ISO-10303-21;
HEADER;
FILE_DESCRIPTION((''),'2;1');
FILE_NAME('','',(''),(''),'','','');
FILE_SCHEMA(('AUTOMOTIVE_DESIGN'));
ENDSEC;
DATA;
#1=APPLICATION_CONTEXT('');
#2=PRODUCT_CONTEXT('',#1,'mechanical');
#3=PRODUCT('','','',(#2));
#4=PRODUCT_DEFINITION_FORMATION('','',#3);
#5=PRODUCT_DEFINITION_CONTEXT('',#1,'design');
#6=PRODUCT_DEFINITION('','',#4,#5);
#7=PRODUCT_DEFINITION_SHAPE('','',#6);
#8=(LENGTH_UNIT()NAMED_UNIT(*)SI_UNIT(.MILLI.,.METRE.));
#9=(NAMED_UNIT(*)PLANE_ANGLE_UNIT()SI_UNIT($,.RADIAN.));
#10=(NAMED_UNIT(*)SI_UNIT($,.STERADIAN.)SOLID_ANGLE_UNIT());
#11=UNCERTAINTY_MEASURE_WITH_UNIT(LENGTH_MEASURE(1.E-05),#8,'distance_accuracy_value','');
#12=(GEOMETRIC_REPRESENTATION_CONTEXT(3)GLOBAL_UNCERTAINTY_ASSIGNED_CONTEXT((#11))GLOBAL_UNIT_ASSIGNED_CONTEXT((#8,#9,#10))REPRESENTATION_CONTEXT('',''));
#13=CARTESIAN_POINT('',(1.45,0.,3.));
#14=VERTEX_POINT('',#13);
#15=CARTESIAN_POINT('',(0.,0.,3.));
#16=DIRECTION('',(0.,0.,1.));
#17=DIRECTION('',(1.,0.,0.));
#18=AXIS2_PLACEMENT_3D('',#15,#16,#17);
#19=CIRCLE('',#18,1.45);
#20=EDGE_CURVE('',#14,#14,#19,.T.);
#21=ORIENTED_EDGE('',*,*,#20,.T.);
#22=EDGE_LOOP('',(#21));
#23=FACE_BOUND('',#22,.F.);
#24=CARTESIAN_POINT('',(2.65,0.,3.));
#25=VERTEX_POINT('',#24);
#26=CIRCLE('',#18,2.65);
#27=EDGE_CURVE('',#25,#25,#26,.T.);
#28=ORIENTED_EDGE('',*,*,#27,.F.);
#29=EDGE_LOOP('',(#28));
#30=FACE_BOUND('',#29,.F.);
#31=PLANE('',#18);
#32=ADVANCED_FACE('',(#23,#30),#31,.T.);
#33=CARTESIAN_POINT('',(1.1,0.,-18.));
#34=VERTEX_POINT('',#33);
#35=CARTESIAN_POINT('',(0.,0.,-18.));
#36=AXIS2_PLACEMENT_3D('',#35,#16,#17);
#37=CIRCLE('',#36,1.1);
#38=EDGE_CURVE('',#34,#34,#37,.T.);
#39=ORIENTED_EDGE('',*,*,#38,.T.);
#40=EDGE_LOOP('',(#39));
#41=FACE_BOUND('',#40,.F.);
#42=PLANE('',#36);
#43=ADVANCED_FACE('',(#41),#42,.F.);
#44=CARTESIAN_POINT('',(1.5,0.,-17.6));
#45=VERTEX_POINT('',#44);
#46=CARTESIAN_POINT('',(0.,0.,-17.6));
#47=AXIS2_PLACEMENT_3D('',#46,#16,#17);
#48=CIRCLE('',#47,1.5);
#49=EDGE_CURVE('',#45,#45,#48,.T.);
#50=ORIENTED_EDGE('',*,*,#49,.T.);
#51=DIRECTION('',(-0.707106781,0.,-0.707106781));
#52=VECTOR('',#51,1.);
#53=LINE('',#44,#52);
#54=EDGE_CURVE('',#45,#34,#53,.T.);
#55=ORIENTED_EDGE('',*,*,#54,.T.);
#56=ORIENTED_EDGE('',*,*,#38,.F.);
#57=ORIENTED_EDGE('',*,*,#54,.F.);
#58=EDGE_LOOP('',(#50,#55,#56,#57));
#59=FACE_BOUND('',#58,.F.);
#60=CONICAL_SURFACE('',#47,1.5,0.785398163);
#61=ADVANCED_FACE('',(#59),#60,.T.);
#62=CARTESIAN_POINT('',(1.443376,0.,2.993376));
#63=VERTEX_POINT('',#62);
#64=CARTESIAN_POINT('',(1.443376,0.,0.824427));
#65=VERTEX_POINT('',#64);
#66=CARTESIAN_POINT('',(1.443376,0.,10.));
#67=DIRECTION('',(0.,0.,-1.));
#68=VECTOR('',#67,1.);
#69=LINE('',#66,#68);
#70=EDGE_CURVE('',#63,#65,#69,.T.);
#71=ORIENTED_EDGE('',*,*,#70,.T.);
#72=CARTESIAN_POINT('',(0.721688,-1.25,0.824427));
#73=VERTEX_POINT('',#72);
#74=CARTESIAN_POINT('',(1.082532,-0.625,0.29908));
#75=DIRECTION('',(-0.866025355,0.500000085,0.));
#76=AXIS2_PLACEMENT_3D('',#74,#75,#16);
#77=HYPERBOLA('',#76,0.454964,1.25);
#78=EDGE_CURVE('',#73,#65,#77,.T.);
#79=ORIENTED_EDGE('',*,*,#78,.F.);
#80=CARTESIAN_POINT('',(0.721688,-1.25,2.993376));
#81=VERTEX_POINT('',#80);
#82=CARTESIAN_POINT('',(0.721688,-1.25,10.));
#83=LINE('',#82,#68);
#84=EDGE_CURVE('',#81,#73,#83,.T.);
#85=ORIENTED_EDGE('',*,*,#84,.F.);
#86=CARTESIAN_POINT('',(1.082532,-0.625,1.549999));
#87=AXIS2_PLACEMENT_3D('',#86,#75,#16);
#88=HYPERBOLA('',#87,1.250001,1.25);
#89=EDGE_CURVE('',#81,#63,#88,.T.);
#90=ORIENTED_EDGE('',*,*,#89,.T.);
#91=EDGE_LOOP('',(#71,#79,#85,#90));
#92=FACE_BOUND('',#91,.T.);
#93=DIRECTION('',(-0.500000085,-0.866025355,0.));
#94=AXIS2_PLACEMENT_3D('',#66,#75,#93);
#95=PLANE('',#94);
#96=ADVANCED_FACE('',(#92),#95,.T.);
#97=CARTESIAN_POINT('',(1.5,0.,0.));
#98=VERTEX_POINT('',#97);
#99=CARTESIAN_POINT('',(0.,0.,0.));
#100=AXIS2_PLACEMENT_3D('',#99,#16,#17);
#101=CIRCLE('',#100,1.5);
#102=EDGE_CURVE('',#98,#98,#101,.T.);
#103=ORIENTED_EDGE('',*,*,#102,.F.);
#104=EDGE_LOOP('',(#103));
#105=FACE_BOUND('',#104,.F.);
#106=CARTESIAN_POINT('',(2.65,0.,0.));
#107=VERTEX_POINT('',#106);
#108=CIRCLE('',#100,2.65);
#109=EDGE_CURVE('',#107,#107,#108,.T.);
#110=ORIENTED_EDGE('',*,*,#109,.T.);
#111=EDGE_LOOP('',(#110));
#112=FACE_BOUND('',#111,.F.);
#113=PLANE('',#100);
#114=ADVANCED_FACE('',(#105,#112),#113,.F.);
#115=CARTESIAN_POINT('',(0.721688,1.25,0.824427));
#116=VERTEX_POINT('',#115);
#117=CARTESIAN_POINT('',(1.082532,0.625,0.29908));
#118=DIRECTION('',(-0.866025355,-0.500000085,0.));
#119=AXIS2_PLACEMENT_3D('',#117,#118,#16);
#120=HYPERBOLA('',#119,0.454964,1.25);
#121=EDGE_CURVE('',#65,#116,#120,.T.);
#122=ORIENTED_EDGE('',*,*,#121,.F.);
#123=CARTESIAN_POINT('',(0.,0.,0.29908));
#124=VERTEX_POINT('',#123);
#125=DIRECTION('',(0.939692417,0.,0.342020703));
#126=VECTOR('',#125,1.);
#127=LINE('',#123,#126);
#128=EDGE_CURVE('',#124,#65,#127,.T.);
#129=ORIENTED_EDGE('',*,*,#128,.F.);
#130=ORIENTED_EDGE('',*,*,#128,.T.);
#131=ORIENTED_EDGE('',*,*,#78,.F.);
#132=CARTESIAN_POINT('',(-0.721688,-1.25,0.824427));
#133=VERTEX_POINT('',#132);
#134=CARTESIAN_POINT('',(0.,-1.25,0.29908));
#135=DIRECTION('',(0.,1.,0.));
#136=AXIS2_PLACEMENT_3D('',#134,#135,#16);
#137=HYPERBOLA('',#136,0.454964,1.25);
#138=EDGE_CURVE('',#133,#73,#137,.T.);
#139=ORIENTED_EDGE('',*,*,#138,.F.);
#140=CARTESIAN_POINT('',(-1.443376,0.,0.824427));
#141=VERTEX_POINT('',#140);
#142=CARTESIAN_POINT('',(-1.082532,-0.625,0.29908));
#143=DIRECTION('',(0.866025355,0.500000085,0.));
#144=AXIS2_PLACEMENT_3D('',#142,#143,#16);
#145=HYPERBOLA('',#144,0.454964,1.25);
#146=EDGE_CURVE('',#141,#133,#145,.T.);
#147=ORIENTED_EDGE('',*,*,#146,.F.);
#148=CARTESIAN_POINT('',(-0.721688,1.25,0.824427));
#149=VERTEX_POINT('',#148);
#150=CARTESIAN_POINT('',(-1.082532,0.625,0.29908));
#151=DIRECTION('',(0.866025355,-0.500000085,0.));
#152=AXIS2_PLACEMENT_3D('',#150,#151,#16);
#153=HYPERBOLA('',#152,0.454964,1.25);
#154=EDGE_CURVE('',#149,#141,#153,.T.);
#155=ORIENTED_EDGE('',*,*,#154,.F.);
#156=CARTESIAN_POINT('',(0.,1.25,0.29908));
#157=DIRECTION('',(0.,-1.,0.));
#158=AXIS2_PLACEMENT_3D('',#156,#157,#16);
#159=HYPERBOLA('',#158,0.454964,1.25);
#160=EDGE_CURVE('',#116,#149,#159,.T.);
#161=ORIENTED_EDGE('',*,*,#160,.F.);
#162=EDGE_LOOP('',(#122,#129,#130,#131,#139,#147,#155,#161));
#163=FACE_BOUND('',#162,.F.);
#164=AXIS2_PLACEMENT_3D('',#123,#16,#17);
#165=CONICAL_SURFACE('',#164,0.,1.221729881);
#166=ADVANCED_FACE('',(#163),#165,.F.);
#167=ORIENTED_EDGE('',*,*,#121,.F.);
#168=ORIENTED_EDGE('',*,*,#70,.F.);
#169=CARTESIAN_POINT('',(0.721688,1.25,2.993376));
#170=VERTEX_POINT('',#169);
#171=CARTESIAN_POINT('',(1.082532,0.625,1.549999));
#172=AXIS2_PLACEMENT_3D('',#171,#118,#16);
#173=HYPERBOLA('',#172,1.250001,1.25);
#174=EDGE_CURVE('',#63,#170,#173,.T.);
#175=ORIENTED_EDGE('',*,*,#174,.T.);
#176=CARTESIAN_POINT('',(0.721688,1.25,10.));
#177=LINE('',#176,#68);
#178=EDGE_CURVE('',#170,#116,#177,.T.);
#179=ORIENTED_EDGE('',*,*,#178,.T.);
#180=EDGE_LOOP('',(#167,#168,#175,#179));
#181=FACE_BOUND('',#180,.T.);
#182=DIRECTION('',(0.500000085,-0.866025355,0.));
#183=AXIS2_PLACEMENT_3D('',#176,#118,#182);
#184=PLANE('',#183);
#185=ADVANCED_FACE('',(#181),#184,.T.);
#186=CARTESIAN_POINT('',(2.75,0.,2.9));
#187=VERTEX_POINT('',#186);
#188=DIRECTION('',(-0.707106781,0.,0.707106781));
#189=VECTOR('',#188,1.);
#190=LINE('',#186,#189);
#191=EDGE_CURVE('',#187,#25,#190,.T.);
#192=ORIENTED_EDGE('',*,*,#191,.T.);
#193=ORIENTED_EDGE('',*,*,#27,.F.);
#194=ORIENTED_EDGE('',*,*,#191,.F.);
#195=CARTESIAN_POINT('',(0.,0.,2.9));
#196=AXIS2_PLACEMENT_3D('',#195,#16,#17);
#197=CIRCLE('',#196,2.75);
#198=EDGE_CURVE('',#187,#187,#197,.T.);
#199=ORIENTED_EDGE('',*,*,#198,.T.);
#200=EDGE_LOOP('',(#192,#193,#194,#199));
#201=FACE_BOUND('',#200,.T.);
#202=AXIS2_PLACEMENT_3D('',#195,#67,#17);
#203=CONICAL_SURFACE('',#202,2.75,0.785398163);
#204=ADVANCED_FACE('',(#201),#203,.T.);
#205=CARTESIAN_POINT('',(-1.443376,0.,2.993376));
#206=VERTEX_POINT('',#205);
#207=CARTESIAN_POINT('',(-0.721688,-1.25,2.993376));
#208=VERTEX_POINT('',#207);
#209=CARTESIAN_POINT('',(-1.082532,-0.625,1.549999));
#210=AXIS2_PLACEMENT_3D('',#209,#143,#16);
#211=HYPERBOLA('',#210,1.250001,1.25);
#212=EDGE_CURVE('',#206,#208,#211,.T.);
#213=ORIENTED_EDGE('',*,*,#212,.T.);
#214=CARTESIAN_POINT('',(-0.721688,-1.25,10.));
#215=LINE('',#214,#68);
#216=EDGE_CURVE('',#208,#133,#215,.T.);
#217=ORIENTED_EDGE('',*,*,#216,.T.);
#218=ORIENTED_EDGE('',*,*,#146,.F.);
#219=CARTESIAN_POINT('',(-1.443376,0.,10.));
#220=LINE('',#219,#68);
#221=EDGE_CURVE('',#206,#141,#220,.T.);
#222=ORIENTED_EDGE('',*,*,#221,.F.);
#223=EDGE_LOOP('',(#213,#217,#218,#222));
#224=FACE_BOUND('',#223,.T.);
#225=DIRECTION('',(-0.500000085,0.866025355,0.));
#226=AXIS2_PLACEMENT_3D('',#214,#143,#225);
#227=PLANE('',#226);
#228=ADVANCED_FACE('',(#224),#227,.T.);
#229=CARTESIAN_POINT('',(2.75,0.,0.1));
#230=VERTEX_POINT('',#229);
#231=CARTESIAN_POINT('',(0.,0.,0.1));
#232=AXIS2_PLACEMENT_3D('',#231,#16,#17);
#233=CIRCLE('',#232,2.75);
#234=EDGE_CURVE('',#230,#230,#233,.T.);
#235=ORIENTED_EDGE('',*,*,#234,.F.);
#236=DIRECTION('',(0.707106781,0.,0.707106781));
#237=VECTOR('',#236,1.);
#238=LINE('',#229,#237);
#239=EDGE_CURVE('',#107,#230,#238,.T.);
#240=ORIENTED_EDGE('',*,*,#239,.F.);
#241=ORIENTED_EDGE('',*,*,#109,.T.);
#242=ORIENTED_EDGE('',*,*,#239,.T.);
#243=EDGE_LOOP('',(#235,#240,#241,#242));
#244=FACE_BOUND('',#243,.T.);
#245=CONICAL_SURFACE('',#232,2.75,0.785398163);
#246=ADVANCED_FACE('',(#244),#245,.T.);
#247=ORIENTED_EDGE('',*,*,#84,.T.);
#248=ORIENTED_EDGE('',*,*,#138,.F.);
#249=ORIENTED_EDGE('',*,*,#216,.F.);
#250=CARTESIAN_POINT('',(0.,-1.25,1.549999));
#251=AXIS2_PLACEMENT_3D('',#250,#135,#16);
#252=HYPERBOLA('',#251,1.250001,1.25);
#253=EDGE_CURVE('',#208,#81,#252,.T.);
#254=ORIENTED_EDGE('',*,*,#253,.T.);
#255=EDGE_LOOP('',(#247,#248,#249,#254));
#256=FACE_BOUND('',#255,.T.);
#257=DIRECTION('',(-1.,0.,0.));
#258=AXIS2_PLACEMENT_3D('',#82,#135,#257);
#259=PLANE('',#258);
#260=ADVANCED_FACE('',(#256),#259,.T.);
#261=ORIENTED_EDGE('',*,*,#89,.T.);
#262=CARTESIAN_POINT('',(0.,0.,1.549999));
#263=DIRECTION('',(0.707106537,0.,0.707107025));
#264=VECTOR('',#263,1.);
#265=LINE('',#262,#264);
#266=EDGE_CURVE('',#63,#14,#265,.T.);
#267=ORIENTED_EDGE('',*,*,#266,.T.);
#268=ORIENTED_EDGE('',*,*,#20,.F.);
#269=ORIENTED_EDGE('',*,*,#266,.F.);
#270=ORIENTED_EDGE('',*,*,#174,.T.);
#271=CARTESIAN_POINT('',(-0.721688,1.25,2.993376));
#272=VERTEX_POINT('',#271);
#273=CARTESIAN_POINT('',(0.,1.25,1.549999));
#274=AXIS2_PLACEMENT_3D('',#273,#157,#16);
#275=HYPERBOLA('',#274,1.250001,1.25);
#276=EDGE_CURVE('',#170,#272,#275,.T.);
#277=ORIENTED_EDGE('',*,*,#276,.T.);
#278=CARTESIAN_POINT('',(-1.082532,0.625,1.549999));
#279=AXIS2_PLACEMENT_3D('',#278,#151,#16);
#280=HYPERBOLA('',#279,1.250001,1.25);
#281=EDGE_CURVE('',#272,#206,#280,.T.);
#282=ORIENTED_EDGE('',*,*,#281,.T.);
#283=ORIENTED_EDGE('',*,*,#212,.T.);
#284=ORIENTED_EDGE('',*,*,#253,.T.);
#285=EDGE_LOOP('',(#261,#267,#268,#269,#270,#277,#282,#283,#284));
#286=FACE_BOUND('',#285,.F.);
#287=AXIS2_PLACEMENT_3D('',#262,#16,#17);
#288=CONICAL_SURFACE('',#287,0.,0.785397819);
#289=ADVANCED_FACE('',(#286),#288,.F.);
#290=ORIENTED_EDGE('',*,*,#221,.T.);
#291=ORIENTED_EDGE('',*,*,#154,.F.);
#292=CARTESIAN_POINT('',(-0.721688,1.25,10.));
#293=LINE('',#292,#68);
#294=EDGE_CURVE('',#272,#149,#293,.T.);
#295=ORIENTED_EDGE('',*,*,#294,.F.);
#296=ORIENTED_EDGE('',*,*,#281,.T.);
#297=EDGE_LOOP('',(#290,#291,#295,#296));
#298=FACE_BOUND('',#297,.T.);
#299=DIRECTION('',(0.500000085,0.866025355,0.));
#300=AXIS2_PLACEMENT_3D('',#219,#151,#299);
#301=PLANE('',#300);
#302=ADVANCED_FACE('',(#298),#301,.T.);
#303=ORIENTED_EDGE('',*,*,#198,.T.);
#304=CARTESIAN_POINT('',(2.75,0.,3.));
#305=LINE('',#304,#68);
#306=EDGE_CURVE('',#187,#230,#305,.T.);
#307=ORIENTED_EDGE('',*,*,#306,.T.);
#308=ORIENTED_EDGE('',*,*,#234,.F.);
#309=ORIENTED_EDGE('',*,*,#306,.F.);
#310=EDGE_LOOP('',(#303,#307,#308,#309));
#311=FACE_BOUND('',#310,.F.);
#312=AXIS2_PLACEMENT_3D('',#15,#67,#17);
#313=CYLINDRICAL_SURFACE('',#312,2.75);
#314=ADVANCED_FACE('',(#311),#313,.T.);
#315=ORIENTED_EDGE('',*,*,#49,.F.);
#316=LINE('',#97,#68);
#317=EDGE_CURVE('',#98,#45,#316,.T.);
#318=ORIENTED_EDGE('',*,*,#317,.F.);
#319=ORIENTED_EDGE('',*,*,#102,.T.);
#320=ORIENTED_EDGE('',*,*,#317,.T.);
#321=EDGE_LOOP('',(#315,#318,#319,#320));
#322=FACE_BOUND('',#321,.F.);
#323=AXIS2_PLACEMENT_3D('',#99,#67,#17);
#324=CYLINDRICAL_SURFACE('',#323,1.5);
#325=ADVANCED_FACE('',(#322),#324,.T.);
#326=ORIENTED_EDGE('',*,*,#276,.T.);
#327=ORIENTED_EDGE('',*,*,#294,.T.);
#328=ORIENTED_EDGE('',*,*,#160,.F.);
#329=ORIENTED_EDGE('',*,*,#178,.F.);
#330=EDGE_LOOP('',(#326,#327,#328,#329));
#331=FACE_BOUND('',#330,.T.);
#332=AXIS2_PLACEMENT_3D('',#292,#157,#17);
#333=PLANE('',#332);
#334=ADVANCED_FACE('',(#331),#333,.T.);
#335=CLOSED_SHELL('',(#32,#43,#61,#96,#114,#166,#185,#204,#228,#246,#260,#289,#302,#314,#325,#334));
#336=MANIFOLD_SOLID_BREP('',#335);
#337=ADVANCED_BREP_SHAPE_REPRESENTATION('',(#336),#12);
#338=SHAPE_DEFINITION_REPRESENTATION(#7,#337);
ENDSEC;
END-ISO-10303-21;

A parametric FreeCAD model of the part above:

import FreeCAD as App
import Part
import Sketcher
from FreeCAD import Vector
Q = App.Units.Quantity


def edges_at(feature, points):
    """Names of the edges that pass closest to the given points."""
    edges = feature.Shape.Edges
    near = lambda p: min(range(len(edges)), key=lambda i: edges[i].distToShape(Part.Vertex(*p))[0])
    return sorted({f"Edge{near(p) + 1}" for p in points})


def add_polygon(sketch, points):
    """Adds a closed chain of lines whose ends are joined by coincident constraints."""
    first, n = sketch.GeometryCount, len(points)
    for a, b in zip(points, points[1:] + points[:1]):
        sketch.addGeometry(Part.LineSegment(App.Vector(*a, 0), App.Vector(*b, 0)), False)
    for i in range(n):
        sketch.addConstraint(Sketcher.Constraint("Coincident", first + i, 2, first + (i + 1) % n, 1))

doc = App.newDocument("Part")
params = doc.addObject("Spreadsheet::Sheet", "Params")
for row, (alias, value) in enumerate([
    ("sketch1_height", "8.7 mm"),
    ("sketch1_width", "2.75 mm"),
    ("revolution_angle", "360 deg"),
    ("sketch2_diameter", "7.5 mm"),
    ("sketch3_height", "18 mm"),
    ("sketch3_height2", "3 mm"),
    ("sketch3_width", "1.3 mm"),
    ("sketch3_width2", "1.5 mm"),
    ("sketch3_width3", "1.25 mm"),
    ("revolution2_angle", "360 deg"),
    ("chamfer_size", "0.4 mm"),
    ("chamfer2_size", "0.1 mm"),
], start=1):
    params.set(f"A{row}", alias)
    params.set(f"B{row}", "=" + value)
    params.setAlias(f"B{row}", alias)

body = doc.addObject("PartDesign::Body", "Body")

# Sketch on XZ plane
sketch1 = body.newObject("Sketcher::SketchObject", "Sketch")
sketch1.AttachmentSupport = (doc.getObject("XZ_Plane"), [""])
sketch1.MapMode = "FlatFace"
add_polygon(sketch1, [(0, 0.3), (2.8, 1.3), (2.8, 10), (0, 10)])  # lines 0-3
sketch1.addConstraint([
    Sketcher.Constraint("Vertical", 1),
    Sketcher.Constraint("Horizontal", 2),
    Sketcher.Constraint("Vertical", 3),
    Sketcher.Constraint("PointOnObject", 2, 2, -2),
    Sketcher.Constraint("DistanceY", 1, 1, 1, 2, 8.7),
    Sketcher.Constraint("DistanceY", -1, 1, 1, 2, 10.0),
    Sketcher.Constraint("DistanceX", 2, 2, 2, 1, 2.75),
    Sketcher.Constraint("DistanceY", 3, 2, 3, 1, 9.70092),
])
sketch1.setExpression("Constraints[8]", "Params.sketch1_height")
sketch1.setExpression("Constraints[10]", "Params.sketch1_width")
revolution = body.newObject("PartDesign::Revolution", "Revolution")
revolution.Profile = sketch1
revolution.ReferenceAxis = (sketch1, ["V_Axis"])
revolution.setExpression("Angle", "Params.revolution_angle")

# Sketch on XY plane
sketch2 = body.newObject("Sketcher::SketchObject", "Sketch001")
sketch2.AttachmentSupport = (doc.getObject("XY_Plane"), [""])
sketch2.MapMode = "FlatFace"
sketch2.AttachmentOffset = App.Placement(Vector(0, 0, 10), App.Rotation())
sketch2.addGeometry(Part.Circle(Vector(0, 0, 0), Vector(0, 0, 1), 3.8), False)  # 0
add_polygon(sketch2, [(1.4, 0), (0.7, -1.2), (-0.7, -1.2), (-1.4, 0), (-0.7, 1.2), (0.7, 1.2)])  # lines 1-6
sketch2.addConstraint([
    Sketcher.Constraint("Horizontal", 2),
    Sketcher.Constraint("Horizontal", 5),
    Sketcher.Constraint("Coincident", 0, 3, -1, 1),
    Sketcher.Constraint("Symmetric", 1, 2, 4, 2, -1, 1),
    Sketcher.Constraint("Symmetric", 3, 2, 6, 2, -1, 1),
    Sketcher.Constraint("PointOnObject", 3, 2, -1),
    Sketcher.Constraint("Parallel", 3, 6),
    Sketcher.Constraint("Vertical", 2, 2, 4, 2),
    Sketcher.Constraint("Diameter", 0, 7.5),
    Sketcher.Constraint("Angle", 1, Q("-120.000006 deg")),
    Sketcher.Constraint("DistanceY", 2, 2, 4, 2, 2.5),
    Sketcher.Constraint("DistanceX", 2, 2, 2, 1, 1.443376),
])
sketch2.setExpression("Constraints[14]", "Params.sketch2_diameter")
pocket1 = body.newObject("PartDesign::Pocket", "Pocket")
pocket1.Profile = sketch2
pocket1.Type = "ThroughAll"
body2 = doc.addObject("PartDesign::Body", "Body001")

# Sketch on XZ plane
sketch3 = body2.newObject("Sketcher::SketchObject", "Sketch002")
sketch3.AttachmentSupport = (doc.getObject("XZ_Plane001"), [""])
sketch3.MapMode = "FlatFace"
add_polygon(sketch3, [(2.8, 3), (1.4, 3), (0, 1.5), (0, -18), (1.5, -18), (1.5, 0), (2.8, 0)])  # lines 0-6
sketch3.addConstraint([
    Sketcher.Constraint("Horizontal", 0),
    Sketcher.Constraint("Vertical", 2),
    Sketcher.Constraint("Horizontal", 3),
    Sketcher.Constraint("Vertical", 4),
    Sketcher.Constraint("Horizontal", 5),
    Sketcher.Constraint("Vertical", 6),
    Sketcher.Constraint("PointOnObject", 1, 2, -2),
    Sketcher.Constraint("PointOnObject", 4, 2, -1),
    Sketcher.Constraint("DistanceY", 4, 1, 4, 2, 18.0),
    Sketcher.Constraint("DistanceY", 6, 1, 6, 2, 3.0),
    Sketcher.Constraint("Angle", 1, Q("-134.99998 deg")),
    Sketcher.Constraint("DistanceX", 0, 2, 0, 1, 1.3),
    Sketcher.Constraint("DistanceX", 3, 1, 3, 2, 1.5),
    Sketcher.Constraint("DistanceX", 5, 1, 5, 2, 1.25),
])
sketch3.setExpression("Constraints[15]", "Params.sketch3_height")
sketch3.setExpression("Constraints[16]", "Params.sketch3_height2")
sketch3.setExpression("Constraints[18]", "Params.sketch3_width")
sketch3.setExpression("Constraints[19]", "Params.sketch3_width2")
sketch3.setExpression("Constraints[20]", "Params.sketch3_width3")
revolution2 = body2.newObject("PartDesign::Revolution", "Revolution001")
revolution2.Profile = sketch3
revolution2.ReferenceAxis = (sketch3, ["V_Axis"])
revolution2.setExpression("Angle", "Params.revolution2_angle")
doc.recompute()

boolean = body2.newObject("PartDesign::Boolean", "Boolean")
boolean.Type = "Cut"
boolean.addObjects([body])
doc.recompute()

chamfer = body2.newObject("PartDesign::Chamfer", "Chamfer")
chamfer.Base = (boolean, edges_at(boolean, [(-1.5, 0, -18)]))
chamfer.setExpression("Size", "Params.chamfer_size")
doc.recompute()

chamfer2 = body2.newObject("PartDesign::Chamfer", "Chamfer001")
chamfer2.Base = (chamfer, edges_at(chamfer, [(-2.75, 0, 0), (-2.75, 0, 3)]))
chamfer2.setExpression("Size", "Params.chamfer2_size")

doc.recompute()
